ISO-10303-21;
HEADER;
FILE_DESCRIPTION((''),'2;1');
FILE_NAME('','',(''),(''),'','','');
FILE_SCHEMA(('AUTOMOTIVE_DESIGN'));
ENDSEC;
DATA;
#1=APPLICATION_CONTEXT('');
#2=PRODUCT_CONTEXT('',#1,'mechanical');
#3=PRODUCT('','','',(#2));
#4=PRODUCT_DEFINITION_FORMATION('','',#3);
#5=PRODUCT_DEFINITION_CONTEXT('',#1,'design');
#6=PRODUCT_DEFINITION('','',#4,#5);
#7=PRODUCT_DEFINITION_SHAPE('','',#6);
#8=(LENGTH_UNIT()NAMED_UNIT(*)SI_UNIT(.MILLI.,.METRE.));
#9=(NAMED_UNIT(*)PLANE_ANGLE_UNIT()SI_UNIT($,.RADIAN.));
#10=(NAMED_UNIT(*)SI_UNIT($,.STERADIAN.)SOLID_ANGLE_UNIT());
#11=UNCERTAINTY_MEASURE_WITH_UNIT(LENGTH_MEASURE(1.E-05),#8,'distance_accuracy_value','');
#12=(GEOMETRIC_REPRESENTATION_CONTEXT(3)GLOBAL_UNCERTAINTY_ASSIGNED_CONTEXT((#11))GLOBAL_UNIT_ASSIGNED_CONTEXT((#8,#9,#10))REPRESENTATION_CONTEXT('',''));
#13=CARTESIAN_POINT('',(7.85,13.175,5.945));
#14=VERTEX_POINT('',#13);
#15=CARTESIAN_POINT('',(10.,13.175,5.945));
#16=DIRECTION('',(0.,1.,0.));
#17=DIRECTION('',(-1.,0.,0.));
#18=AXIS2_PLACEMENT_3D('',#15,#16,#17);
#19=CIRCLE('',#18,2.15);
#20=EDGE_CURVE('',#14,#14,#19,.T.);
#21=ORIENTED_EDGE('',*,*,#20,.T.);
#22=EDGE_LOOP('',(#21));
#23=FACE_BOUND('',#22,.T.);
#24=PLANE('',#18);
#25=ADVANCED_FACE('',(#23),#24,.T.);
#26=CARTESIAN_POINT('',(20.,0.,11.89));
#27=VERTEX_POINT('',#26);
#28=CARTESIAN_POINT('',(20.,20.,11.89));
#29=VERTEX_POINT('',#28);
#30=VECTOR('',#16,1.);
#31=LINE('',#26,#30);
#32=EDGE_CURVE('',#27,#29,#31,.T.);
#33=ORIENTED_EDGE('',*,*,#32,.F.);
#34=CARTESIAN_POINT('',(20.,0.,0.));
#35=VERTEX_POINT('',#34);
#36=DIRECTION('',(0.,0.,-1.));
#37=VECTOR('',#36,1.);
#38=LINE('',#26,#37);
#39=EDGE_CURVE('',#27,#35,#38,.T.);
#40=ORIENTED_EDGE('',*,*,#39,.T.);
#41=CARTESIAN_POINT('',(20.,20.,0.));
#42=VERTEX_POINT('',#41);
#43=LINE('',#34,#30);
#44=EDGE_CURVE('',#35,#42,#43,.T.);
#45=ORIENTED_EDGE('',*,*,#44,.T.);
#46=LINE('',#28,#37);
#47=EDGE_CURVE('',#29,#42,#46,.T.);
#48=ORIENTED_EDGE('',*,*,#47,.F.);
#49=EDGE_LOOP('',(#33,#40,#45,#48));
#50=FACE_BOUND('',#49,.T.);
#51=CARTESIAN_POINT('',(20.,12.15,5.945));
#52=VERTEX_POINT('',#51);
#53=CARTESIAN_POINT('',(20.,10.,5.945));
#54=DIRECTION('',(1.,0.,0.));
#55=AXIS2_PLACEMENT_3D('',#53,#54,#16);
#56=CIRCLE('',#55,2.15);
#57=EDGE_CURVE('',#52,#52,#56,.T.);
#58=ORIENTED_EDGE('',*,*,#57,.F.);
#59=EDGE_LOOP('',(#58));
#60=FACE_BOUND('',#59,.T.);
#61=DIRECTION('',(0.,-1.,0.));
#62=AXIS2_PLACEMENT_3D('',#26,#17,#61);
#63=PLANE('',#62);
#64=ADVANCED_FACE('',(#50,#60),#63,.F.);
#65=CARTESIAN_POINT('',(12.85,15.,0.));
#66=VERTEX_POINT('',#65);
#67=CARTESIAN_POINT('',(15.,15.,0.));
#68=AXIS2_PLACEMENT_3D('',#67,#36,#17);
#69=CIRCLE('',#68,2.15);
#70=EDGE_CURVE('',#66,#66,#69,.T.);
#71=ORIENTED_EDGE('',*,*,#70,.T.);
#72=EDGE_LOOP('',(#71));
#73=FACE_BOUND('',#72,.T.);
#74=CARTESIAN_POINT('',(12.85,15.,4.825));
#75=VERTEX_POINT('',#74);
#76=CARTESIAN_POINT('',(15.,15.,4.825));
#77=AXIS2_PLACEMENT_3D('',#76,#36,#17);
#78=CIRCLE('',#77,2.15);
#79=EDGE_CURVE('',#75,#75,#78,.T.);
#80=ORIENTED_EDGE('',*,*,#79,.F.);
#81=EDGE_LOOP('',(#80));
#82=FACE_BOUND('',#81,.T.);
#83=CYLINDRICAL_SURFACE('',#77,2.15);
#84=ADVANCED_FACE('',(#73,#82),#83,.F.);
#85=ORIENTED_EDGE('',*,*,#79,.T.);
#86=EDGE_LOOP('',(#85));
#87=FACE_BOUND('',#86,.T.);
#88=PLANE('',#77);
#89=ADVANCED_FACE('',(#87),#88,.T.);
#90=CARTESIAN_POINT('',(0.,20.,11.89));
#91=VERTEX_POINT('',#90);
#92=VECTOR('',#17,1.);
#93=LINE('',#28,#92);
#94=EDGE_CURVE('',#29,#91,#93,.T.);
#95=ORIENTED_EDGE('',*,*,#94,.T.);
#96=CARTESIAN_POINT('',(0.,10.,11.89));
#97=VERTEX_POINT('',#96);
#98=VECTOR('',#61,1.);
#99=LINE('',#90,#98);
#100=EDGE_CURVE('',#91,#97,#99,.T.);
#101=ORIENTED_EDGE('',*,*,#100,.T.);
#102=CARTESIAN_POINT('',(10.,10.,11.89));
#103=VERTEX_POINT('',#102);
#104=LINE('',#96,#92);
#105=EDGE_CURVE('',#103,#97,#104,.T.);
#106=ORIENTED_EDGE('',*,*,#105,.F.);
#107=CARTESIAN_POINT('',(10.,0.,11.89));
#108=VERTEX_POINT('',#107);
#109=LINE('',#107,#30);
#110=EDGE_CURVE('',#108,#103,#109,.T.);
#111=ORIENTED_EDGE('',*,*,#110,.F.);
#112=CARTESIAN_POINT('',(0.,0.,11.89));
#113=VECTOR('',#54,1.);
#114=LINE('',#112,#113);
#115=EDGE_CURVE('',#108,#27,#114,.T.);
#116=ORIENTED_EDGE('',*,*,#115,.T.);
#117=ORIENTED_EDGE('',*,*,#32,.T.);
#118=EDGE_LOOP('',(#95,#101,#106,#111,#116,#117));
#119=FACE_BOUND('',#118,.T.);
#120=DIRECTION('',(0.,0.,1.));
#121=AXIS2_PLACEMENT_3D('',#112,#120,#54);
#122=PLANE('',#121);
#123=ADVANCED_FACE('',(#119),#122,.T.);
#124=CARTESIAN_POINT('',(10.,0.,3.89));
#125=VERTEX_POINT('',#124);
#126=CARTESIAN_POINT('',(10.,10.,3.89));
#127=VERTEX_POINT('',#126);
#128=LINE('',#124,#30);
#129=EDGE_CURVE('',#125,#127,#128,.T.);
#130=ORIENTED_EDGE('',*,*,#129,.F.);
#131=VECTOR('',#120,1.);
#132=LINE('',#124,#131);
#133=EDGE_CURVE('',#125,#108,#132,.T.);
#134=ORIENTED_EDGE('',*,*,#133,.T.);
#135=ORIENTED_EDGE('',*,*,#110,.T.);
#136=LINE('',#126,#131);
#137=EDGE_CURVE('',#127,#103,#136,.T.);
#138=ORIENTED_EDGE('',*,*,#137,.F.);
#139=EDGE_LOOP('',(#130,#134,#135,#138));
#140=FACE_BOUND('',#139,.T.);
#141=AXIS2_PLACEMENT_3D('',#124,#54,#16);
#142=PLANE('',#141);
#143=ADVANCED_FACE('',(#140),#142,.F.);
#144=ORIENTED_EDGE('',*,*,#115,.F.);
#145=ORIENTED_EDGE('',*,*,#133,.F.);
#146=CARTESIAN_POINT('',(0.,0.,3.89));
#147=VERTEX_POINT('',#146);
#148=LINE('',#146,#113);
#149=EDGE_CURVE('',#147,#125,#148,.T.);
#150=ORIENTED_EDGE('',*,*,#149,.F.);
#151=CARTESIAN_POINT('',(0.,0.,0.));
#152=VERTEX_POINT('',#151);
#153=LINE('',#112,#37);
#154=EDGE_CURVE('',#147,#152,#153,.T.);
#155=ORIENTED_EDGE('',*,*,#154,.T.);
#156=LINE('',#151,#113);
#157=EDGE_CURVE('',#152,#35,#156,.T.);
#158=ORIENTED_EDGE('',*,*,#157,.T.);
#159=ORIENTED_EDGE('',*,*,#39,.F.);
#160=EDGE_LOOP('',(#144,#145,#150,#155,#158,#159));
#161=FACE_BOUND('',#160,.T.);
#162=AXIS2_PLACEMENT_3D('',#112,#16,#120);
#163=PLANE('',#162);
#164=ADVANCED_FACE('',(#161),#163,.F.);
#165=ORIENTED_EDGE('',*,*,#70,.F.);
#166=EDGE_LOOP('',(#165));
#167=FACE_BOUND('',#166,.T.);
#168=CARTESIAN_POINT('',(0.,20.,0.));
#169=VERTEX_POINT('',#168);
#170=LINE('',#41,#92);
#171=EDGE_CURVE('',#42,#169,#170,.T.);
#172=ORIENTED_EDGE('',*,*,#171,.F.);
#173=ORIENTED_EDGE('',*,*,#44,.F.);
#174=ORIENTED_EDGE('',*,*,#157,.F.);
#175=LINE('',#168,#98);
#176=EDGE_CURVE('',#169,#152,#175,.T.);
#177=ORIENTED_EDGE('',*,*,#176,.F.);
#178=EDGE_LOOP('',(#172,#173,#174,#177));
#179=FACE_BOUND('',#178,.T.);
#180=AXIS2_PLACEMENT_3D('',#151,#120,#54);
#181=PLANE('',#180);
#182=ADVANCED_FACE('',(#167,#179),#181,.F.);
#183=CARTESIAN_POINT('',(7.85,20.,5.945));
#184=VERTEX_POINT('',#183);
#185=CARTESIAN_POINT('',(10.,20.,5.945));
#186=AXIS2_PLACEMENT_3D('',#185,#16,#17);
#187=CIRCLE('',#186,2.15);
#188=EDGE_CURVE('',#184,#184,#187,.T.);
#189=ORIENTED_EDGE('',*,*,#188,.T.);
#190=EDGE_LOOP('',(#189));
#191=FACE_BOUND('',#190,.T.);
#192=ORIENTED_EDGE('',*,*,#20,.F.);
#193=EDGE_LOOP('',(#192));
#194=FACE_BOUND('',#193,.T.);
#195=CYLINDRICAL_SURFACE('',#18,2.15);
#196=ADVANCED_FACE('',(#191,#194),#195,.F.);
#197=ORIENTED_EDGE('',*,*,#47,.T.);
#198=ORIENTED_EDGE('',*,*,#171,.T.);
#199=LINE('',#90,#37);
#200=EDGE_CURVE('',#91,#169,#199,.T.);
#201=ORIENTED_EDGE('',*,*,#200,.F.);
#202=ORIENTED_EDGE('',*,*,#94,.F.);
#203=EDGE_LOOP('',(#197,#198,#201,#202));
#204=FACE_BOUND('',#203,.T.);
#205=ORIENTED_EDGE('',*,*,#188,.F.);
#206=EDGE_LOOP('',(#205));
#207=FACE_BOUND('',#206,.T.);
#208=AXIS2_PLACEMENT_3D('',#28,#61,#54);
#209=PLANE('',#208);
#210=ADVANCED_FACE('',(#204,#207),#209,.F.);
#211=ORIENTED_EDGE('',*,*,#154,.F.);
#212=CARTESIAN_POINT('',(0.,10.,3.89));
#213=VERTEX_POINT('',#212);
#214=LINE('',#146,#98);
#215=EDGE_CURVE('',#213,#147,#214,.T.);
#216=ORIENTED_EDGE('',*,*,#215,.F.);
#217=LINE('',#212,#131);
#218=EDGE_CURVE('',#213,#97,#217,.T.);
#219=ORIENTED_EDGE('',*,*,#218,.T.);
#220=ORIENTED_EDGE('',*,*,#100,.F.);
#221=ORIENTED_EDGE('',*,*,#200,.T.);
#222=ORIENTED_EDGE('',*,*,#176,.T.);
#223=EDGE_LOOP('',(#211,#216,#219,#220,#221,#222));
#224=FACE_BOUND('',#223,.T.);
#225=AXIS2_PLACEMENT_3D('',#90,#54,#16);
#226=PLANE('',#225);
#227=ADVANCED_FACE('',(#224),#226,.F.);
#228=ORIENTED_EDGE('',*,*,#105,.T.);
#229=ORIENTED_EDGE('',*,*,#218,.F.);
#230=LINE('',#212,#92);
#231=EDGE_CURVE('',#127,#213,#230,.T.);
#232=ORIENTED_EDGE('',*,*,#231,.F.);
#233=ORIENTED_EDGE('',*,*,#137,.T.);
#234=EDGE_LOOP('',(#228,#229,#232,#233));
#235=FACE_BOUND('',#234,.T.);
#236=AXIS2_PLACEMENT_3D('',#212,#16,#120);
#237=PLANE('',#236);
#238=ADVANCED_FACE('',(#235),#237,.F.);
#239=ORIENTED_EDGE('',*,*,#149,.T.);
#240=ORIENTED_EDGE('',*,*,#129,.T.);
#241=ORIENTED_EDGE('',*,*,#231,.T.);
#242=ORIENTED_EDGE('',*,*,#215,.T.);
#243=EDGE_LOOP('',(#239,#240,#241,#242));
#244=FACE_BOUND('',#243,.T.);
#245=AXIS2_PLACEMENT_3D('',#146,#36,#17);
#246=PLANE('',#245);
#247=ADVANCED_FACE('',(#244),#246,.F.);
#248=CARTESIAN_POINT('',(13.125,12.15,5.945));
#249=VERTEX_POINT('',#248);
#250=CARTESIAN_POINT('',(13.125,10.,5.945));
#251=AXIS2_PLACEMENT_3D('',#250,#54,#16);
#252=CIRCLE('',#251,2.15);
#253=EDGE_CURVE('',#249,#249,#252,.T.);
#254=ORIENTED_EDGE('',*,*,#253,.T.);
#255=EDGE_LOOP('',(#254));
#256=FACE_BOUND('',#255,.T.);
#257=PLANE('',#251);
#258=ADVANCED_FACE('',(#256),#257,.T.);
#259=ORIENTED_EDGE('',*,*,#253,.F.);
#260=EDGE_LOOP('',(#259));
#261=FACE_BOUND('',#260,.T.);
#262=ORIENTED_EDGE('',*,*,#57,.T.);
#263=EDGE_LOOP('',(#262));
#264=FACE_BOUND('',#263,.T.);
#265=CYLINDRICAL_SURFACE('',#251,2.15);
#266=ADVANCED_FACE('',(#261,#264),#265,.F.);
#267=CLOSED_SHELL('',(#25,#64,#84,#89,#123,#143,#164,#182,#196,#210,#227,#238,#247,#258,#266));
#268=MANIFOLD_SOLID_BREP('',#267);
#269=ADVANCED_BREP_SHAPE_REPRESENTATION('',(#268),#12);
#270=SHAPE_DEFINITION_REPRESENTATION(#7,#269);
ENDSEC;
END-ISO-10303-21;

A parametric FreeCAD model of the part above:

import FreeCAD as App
import Part
import Sketcher

V = App.Vector

doc = App.newDocument("Part")
body = doc.addObject("PartDesign::Body", "Body")

# Sketch on XY plane
sketch1 = body.newObject("Sketcher::SketchObject", "Sketch")
sketch1.AttachmentSupport = (doc.getObject("XY_Plane"), [""])
sketch1.MapMode = "FlatFace"
sketch1.addGeometry([
    Part.LineSegment(V(0, 20, 0), V(0, 0, 0)),
    Part.LineSegment(V(0, 0, 0), V(20, 0, 0)),
    Part.LineSegment(V(20, 0, 0), V(20, 20, 0)),
    Part.LineSegment(V(20, 20, 0), V(0, 20, 0)),
], False)
sketch1.addConstraint([
    Sketcher.Constraint("Coincident", 0, 2, 1, 1),
    Sketcher.Constraint("Coincident", 1, 2, 2, 1),
    Sketcher.Constraint("Coincident", 2, 2, 3, 1),
    Sketcher.Constraint("Coincident", 3, 2, 0, 1),
    Sketcher.Constraint("Vertical", 0),
    Sketcher.Constraint("Horizontal", 1),
    Sketcher.Constraint("Vertical", 2),
    Sketcher.Constraint("Horizontal", 3),
    Sketcher.Constraint("Coincident", 0, 2, -1, 1),
    Sketcher.Constraint("Equal", 3, 0),
    Sketcher.Constraint("DistanceX", 1, 1, 1, 2, 20.0),
])
pad1 = body.newObject("PartDesign::Pad", "Pad")
pad1.Profile = sketch1
pad1.Length = 11.89

# Sketch on XY plane
sketch2 = body.newObject("Sketcher::SketchObject", "Sketch001")
sketch2.AttachmentSupport = (doc.getObject("XY_Plane"), [""])
sketch2.MapMode = "FlatFace"
sketch2.AttachmentOffset = App.Placement(V(0, 0, 11.89), App.Rotation())
sketch2.addGeometry([
    Part.LineSegment(V(0, 10, 0), V(0, 0, 0)),
    Part.LineSegment(V(0, 0, 0), V(10, 0, 0)),
    Part.LineSegment(V(10, 0, 0), V(10, 10, 0)),
    Part.LineSegment(V(10, 10, 0), V(0, 10, 0)),
], False)
sketch2.addConstraint([
    Sketcher.Constraint("Coincident", 0, 2, 1, 1),
    Sketcher.Constraint("Coincident", 1, 2, 2, 1),
    Sketcher.Constraint("Coincident", 2, 2, 3, 1),
    Sketcher.Constraint("Coincident", 3, 2, 0, 1),
    Sketcher.Constraint("Vertical", 0),
    Sketcher.Constraint("Horizontal", 1),
    Sketcher.Constraint("Vertical", 2),
    Sketcher.Constraint("Horizontal", 3),
    Sketcher.Constraint("Coincident", 0, 2, -1, 1),
    Sketcher.Constraint("Equal", 3, 0),
    Sketcher.Constraint("DistanceX", 1, 1, 1, 2, 10.0),
])
pocket1 = body.newObject("PartDesign::Pocket", "Pocket")
pocket1.Profile = sketch2
pocket1.Length = 8

# Sketch on XZ plane
sketch3 = body.newObject("Sketcher::SketchObject", "Sketch002")
sketch3.AttachmentSupport = (doc.getObject("XZ_Plane"), [""])
sketch3.MapMode = "FlatFace"
sketch3.AttachmentOffset = App.Placement(V(0, 0, -20), App.Rotation())
sketch3.addGeometry(Part.Circle(V(10, 5.9, 0), V(0, 0, 1), 2.1), False)
sketch3.addConstraint([
    Sketcher.Constraint("Diameter", 0, 4.3),
    Sketcher.Constraint("DistanceX", -1, 1, 0, 3, 10.0),
    Sketcher.Constraint("DistanceY", -1, 1, 0, 3, 5.945),
])
pocket2 = body.newObject("PartDesign::Pocket", "Pocket001")
pocket2.Profile = sketch3
pocket2.Length = 6.825
pocket2.Reversed = True

# Sketch on YZ plane
sketch4 = body.newObject("Sketcher::SketchObject", "Sketch003")
sketch4.AttachmentSupport = (doc.getObject("YZ_Plane"), [""])
sketch4.MapMode = "FlatFace"
sketch4.AttachmentOffset = App.Placement(V(0, 0, 20), App.Rotation())
sketch4.addGeometry(Part.Circle(V(10, 5.9, 0), V(0, 0, 1), 2.1), False)
sketch4.addConstraint([
    Sketcher.Constraint("Diameter", 0, 4.3),
    Sketcher.Constraint("DistanceX", -1, 1, 0, 3, 10.0),
    Sketcher.Constraint("DistanceY", -1, 1, 0, 3, 5.945),
])
pocket3 = body.newObject("PartDesign::Pocket", "Pocket002")
pocket3.Profile = sketch4
pocket3.Length = 6.875

# Sketch on XY plane
sketch5 = body.newObject("Sketcher::SketchObject", "Sketch004")
sketch5.AttachmentSupport = (doc.getObject("XY_Plane"), [""])
sketch5.MapMode = "FlatFace"
sketch5.addGeometry(Part.Circle(V(15, 15, 0), V(0, 0, 1), 2.1), False)
sketch5.addConstraint([
    Sketcher.Constraint("Diameter", 0, 4.3),
    Sketcher.Constraint("DistanceX", -1, 1, 0, 3, 15.0),
    Sketcher.Constraint("DistanceY", -1, 1, 0, 3, 15.0),
])
pocket4 = body.newObject("PartDesign::Pocket", "Pocket003")
pocket4.Profile = sketch5
pocket4.Length = 4.825
pocket4.Reversed = True

doc.recompute()
